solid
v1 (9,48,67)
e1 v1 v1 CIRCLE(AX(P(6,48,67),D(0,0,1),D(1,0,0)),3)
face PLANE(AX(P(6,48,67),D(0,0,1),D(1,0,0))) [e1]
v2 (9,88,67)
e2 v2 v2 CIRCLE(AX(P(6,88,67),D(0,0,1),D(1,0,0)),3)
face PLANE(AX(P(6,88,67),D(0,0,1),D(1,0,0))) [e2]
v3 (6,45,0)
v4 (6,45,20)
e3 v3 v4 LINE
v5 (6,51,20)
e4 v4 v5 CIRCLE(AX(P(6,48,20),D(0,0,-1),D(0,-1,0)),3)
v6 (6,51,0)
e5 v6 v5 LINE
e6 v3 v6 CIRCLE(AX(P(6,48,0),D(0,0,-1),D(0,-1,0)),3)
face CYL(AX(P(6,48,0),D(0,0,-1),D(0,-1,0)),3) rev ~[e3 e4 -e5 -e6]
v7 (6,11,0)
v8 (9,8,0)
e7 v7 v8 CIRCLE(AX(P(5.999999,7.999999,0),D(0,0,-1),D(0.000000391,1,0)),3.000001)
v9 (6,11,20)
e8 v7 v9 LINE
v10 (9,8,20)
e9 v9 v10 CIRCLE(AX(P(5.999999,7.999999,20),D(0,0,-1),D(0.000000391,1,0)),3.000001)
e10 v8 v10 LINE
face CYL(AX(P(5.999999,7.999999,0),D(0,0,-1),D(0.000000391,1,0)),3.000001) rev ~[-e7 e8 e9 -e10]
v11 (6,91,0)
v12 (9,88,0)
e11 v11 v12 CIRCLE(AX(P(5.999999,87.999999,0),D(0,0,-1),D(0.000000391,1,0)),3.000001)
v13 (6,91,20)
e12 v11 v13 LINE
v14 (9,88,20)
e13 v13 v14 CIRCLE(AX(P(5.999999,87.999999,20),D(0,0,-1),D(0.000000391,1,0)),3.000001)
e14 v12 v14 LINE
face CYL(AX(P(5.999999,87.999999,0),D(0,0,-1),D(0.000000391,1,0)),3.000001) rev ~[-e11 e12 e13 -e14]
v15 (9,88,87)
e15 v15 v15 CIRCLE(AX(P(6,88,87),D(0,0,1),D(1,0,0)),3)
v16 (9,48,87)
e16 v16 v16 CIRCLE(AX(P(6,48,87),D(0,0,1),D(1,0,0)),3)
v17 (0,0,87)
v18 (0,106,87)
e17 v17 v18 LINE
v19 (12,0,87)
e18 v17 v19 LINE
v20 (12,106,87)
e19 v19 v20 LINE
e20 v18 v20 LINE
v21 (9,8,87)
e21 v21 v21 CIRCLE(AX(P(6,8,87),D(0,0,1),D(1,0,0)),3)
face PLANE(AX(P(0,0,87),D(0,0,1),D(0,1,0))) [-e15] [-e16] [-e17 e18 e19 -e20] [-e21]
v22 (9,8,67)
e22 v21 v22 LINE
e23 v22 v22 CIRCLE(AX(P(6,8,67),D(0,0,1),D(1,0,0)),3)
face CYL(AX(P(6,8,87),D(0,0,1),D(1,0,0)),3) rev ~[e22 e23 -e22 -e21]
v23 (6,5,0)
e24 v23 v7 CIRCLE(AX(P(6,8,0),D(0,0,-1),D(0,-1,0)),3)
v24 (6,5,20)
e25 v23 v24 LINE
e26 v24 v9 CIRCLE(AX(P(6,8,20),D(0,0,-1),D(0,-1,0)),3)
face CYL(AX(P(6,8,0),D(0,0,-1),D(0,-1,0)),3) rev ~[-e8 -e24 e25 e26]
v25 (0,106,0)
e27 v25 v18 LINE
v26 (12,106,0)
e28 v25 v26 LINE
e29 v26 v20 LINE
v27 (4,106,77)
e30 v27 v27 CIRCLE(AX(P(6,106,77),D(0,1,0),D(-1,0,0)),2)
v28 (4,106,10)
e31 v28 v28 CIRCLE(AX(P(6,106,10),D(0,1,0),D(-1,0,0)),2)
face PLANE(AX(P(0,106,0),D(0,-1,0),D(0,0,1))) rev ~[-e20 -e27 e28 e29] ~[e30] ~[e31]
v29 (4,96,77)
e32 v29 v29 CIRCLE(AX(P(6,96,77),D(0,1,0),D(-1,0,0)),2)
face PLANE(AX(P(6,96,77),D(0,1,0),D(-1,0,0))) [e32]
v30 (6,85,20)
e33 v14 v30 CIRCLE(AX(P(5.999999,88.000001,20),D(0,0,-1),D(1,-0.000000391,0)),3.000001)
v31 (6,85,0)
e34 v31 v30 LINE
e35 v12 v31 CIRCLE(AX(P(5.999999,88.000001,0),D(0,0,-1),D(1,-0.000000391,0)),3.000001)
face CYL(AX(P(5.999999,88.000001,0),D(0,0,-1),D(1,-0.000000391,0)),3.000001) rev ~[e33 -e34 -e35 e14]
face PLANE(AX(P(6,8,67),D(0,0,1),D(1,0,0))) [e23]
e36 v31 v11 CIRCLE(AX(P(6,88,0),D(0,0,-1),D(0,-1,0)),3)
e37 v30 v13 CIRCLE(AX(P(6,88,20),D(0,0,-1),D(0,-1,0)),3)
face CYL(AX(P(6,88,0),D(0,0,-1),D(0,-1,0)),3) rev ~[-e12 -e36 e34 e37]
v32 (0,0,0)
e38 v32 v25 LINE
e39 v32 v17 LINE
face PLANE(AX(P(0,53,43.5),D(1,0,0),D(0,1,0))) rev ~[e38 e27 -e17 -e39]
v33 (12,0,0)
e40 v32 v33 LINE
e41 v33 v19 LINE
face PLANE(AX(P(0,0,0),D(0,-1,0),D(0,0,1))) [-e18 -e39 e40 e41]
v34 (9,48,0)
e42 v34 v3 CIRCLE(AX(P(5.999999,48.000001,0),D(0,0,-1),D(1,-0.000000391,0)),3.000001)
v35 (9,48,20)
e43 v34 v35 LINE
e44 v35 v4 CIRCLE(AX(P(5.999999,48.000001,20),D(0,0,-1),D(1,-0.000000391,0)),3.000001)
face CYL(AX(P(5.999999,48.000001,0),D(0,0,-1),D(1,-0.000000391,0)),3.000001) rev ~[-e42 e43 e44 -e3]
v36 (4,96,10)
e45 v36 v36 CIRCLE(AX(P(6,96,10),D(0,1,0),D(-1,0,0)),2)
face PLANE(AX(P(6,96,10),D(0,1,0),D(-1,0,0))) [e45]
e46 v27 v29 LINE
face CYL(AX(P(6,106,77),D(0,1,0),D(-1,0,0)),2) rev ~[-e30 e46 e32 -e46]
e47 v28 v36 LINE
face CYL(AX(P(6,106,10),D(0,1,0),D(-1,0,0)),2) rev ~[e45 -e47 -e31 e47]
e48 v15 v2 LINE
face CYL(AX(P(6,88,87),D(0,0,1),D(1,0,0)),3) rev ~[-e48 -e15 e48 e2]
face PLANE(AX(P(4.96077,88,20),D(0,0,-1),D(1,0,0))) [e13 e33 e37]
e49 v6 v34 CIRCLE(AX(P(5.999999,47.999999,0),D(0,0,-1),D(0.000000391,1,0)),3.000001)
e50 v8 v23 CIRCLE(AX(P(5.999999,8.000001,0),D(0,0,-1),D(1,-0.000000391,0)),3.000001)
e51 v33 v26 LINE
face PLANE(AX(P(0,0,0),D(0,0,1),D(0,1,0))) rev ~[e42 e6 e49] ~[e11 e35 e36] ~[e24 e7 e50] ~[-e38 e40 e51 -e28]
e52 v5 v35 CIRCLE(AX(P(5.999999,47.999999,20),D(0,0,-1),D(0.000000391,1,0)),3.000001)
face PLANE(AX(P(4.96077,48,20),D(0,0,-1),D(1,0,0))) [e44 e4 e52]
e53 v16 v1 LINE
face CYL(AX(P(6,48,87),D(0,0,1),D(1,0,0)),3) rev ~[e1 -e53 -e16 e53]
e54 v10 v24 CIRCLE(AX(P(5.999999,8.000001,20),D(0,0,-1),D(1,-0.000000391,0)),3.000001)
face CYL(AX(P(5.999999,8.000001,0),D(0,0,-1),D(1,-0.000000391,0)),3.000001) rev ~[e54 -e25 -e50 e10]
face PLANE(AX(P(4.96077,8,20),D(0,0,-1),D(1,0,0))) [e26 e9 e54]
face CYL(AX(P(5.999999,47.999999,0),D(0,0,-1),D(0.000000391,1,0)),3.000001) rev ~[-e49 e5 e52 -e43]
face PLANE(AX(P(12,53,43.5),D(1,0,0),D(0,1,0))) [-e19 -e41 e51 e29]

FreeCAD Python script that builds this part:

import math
import FreeCAD as App
import Part
import Sketcher
from FreeCAD import Vector
Q = App.Units.Quantity


def add_polygon(sketch, points):
    """Adds a closed chain of lines whose ends are joined by coincident constraints."""
    first, n = sketch.GeometryCount, len(points)
    for a, b in zip(points, points[1:] + points[:1]):
        sketch.addGeometry(Part.LineSegment(App.Vector(*a, 0), App.Vector(*b, 0)), False)
    for i in range(n):
        sketch.addConstraint(Sketcher.Constraint("Coincident", first + i, 2, first + (i + 1) % n, 1))

doc = App.newDocument("Part")
body = doc.addObject("PartDesign::Body", "Body")

sketch1 = body.newObject("Sketcher::SketchObject", "Sketch")
sketch1.AttachmentSupport = (doc.getObject("YZ_Plane"), [""])
sketch1.MapMode = "FlatFace"
add_polygon(sketch1, [(0, 87), (0, 0), (106, 0), (106, 87)])
sketch1.addConstraint(Sketcher.Constraint("Vertical", 0))
sketch1.addConstraint(Sketcher.Constraint("Horizontal", 1))
sketch1.addConstraint(Sketcher.Constraint("Vertical", 2))
sketch1.addConstraint(Sketcher.Constraint("Horizontal", 3))
sketch1.addConstraint(Sketcher.Constraint("Coincident", 0, 2, -1, 1))
sketch1.addConstraint(Sketcher.Constraint("DistanceX", 1, 1, 1, 2, Q("106 mm")))
sketch1.addConstraint(Sketcher.Constraint("DistanceY", 0, 2, 0, 1, Q("87 mm")))
pad1 = body.newObject("PartDesign::Pad", "Pad")
pad1.Profile = sketch1
pad1.Length = 12

sketch2 = body.newObject("Sketcher::SketchObject", "Sketch001")
sketch2.AttachmentSupport = (doc.getObject("XY_Plane"), [""])
sketch2.MapMode = "FlatFace"
sketch2.AttachmentOffset = App.Placement(Vector(0, 0, 87), App.Rotation())
sketch2.addGeometry(Part.Circle(Vector(6, 88, 0), Vector(0, 0, 1), 3), False)
sketch2.addGeometry(Part.Circle(Vector(6, 48, 0), Vector(0, 0, 1), 3), False)
sketch2.addGeometry(Part.Circle(Vector(6, 8, 0), Vector(0, 0, 1), 3), False)
sketch2.addConstraint(Sketcher.Constraint("Equal", 0, 1))
sketch2.addConstraint(Sketcher.Constraint("Equal", 1, 2))
sketch2.addConstraint(Sketcher.Constraint("Vertical", 0, 3, 1, 3))
sketch2.addConstraint(Sketcher.Constraint("Vertical", 1, 3, 2, 3))
sketch2.addConstraint(Sketcher.Constraint("Diameter", 0, Q("6 mm")))
sketch2.addConstraint(Sketcher.Constraint("DistanceX", -1, 1, 0, 3, Q("6 mm")))
sketch2.addConstraint(Sketcher.Constraint("DistanceY", -1, 1, 0, 3, Q("88 mm")))
sketch2.addConstraint(Sketcher.Constraint("DistanceY", -1, 1, 1, 3, Q("48 mm")))
sketch2.addConstraint(Sketcher.Constraint("DistanceY", -1, 1, 2, 3, Q("8 mm")))
pocket1 = body.newObject("PartDesign::Pocket", "Pocket")
pocket1.Profile = sketch2
pocket1.Length = 20

sketch3 = body.newObject("Sketcher::SketchObject", "Sketch002")
sketch3.AttachmentSupport = (doc.getObject("XY_Plane"), [""])
sketch3.MapMode = "FlatFace"
sketch3.AttachmentOffset = App.Placement(Vector(0, 0, 87), App.Rotation())
sketch3.addGeometry(Part.Circle(Vector(6, 88, 0), Vector(0, 0, 1), 3), False)
sketch3.addGeometry(Part.Circle(Vector(6, 48, 0), Vector(0, 0, 1), 3), False)
sketch3.addGeometry(Part.Circle(Vector(6, 8, 0), Vector(0, 0, 1), 3), False)
sketch3.addConstraint(Sketcher.Constraint("Equal", 0, 1))
sketch3.addConstraint(Sketcher.Constraint("Equal", 1, 2))
sketch3.addConstraint(Sketcher.Constraint("Vertical", 0, 3, 1, 3))
sketch3.addConstraint(Sketcher.Constraint("Vertical", 1, 3, 2, 3))
sketch3.addConstraint(Sketcher.Constraint("Diameter", 0, Q("6 mm")))
sketch3.addConstraint(Sketcher.Constraint("DistanceX", -1, 1, 0, 3, Q("6 mm")))
sketch3.addConstraint(Sketcher.Constraint("DistanceY", -1, 1, 0, 3, Q("88 mm")))
sketch3.addConstraint(Sketcher.Constraint("DistanceY", -1, 1, 1, 3, Q("48 mm")))
sketch3.addConstraint(Sketcher.Constraint("DistanceY", -1, 1, 2, 3, Q("8 mm")))
pocket2 = body.newObject("PartDesign::Pocket", "Pocket001")
pocket2.Profile = sketch3
pocket2.Length = 20

sketch4 = body.newObject("Sketcher::SketchObject", "Sketch003")
sketch4.AttachmentSupport = (doc.getObject("XY_Plane"), [""])
sketch4.MapMode = "FlatFace"
sketch4.addGeometry(Part.ArcOfCircle(Part.Circle(Vector(6, 88, 0), Vector(0, 0, 1), 3), math.radians(90), math.radians(270)), False)
sketch4.addGeometry(Part.ArcOfCircle(Part.Circle(Vector(6, 88, 0), Vector(0, 0, 1), 3), math.radians(0), math.radians(90)), False)
sketch4.addGeometry(Part.ArcOfCircle(Part.Circle(Vector(6, 88, 0), Vector(0, 0, 1), 3), math.radians(-90), math.radians(0)), False)
sketch4.addGeometry(Part.ArcOfCircle(Part.Circle(Vector(6, 8, 0), Vector(0, 0, 1), 3), math.radians(90), math.radians(270)), False)
sketch4.addGeometry(Part.ArcOfCircle(Part.Circle(Vector(6, 8, 0), Vector(0, 0, 1), 3), math.radians(0), math.radians(90)), False)
sketch4.addGeometry(Part.ArcOfCircle(Part.Circle(Vector(6, 8, 0), Vector(0, 0, 1), 3), math.radians(-90), math.radians(0)), False)
sketch4.addGeometry(Part.ArcOfCircle(Part.Circle(Vector(6, 48, 0), Vector(0, 0, 1), 3), math.radians(90), math.radians(270)), False)
sketch4.addGeometry(Part.ArcOfCircle(Part.Circle(Vector(6, 48, 0), Vector(0, 0, 1), 3), math.radians(0), math.radians(90)), False)
sketch4.addGeometry(Part.ArcOfCircle(Part.Circle(Vector(6, 48, 0), Vector(0, 0, 1), 3), math.radians(-90), math.radians(0)), False)
sketch4.addConstraint(Sketcher.Constraint("Tangent", 0, 1, 1, 2))
sketch4.addConstraint(Sketcher.Constraint("Tangent", 1, 1, 2, 2))
sketch4.addConstraint(Sketcher.Constraint("Tangent", 2, 1, 0, 2))
sketch4.addConstraint(Sketcher.Constraint("Tangent", 3, 1, 4, 2))
sketch4.addConstraint(Sketcher.Constraint("Tangent", 4, 1, 5, 2))
sketch4.addConstraint(Sketcher.Constraint("Tangent", 5, 1, 3, 2))
sketch4.addConstraint(Sketcher.Constraint("Tangent", 6, 1, 7, 2))
sketch4.addConstraint(Sketcher.Constraint("Tangent", 7, 1, 8, 2))
sketch4.addConstraint(Sketcher.Constraint("Tangent", 8, 1, 6, 2))
sketch4.addConstraint(Sketcher.Constraint("Equal", 2, 3))
sketch4.addConstraint(Sketcher.Constraint("Equal", 5, 6))
sketch4.addConstraint(Sketcher.Constraint("Horizontal", 2, 3, 1, 1))
sketch4.addConstraint(Sketcher.Constraint("Horizontal", 5, 3, 4, 1))
sketch4.addConstraint(Sketcher.Constraint("Horizontal", 8, 3, 7, 1))
sketch4.addConstraint(Sketcher.Constraint("Vertical", 2, 3, 3, 3))
sketch4.addConstraint(Sketcher.Constraint("Vertical", 5, 3, 6, 3))
sketch4.addConstraint(Sketcher.Constraint("Vertical", 8, 3, 0, 1))
sketch4.addConstraint(Sketcher.Constraint("Vertical", 0, 1, 2, 1))
sketch4.addConstraint(Sketcher.Constraint("Vertical", 2, 1, 3, 1))
sketch4.addConstraint(Sketcher.Constraint("Vertical", 3, 1, 5, 1))
sketch4.addConstraint(Sketcher.Constraint("Vertical", 5, 1, 6, 1))
sketch4.addConstraint(Sketcher.Constraint("Vertical", 6, 1, 8, 1))
sketch4.addConstraint(Sketcher.Constraint("Radius", 0, Q("3 mm")))
sketch4.addConstraint(Sketcher.Constraint("DistanceX", -1, 1, 0, 3, Q("6 mm")))
sketch4.addConstraint(Sketcher.Constraint("DistanceY", -1, 1, 0, 3, Q("88 mm")))
sketch4.addConstraint(Sketcher.Constraint("DistanceY", -1, 1, 3, 3, Q("8 mm")))
sketch4.addConstraint(Sketcher.Constraint("DistanceY", -1, 1, 6, 3, Q("48 mm")))
pocket3 = body.newObject("PartDesign::Pocket", "Pocket002")
pocket3.Profile = sketch4
pocket3.Length = 20
pocket3.Reversed = True

sketch5 = body.newObject("Sketcher::SketchObject", "Sketch004")
sketch5.AttachmentSupport = (doc.getObject("XZ_Plane"), [""])
sketch5.MapMode = "FlatFace"
sketch5.AttachmentOffset = App.Placement(Vector(0, 0, -106), App.Rotation())
sketch5.addGeometry(Part.Circle(Vector(6, 77, 0), Vector(0, 0, 1), 2), False)
sketch5.addGeometry(Part.Circle(Vector(6, 10, 0), Vector(0, 0, 1), 2), False)
sketch5.addConstraint(Sketcher.Constraint("Equal", 0, 1))
sketch5.addConstraint(Sketcher.Constraint("Vertical", 0, 3, 1, 3))
sketch5.addConstraint(Sketcher.Constraint("Diameter", 0, Q("4 mm")))
sketch5.addConstraint(Sketcher.Constraint("DistanceX", -1, 1, 0, 3, Q("6 mm")))
sketch5.addConstraint(Sketcher.Constraint("DistanceY", -1, 1, 0, 3, Q("77 mm")))
sketch5.addConstraint(Sketcher.Constraint("DistanceY", -1, 1, 1, 3, Q("10 mm")))
pocket4 = body.newObject("PartDesign::Pocket", "Pocket003")
pocket4.Profile = sketch5
pocket4.Length = 10
pocket4.Reversed = True

doc.recompute()
